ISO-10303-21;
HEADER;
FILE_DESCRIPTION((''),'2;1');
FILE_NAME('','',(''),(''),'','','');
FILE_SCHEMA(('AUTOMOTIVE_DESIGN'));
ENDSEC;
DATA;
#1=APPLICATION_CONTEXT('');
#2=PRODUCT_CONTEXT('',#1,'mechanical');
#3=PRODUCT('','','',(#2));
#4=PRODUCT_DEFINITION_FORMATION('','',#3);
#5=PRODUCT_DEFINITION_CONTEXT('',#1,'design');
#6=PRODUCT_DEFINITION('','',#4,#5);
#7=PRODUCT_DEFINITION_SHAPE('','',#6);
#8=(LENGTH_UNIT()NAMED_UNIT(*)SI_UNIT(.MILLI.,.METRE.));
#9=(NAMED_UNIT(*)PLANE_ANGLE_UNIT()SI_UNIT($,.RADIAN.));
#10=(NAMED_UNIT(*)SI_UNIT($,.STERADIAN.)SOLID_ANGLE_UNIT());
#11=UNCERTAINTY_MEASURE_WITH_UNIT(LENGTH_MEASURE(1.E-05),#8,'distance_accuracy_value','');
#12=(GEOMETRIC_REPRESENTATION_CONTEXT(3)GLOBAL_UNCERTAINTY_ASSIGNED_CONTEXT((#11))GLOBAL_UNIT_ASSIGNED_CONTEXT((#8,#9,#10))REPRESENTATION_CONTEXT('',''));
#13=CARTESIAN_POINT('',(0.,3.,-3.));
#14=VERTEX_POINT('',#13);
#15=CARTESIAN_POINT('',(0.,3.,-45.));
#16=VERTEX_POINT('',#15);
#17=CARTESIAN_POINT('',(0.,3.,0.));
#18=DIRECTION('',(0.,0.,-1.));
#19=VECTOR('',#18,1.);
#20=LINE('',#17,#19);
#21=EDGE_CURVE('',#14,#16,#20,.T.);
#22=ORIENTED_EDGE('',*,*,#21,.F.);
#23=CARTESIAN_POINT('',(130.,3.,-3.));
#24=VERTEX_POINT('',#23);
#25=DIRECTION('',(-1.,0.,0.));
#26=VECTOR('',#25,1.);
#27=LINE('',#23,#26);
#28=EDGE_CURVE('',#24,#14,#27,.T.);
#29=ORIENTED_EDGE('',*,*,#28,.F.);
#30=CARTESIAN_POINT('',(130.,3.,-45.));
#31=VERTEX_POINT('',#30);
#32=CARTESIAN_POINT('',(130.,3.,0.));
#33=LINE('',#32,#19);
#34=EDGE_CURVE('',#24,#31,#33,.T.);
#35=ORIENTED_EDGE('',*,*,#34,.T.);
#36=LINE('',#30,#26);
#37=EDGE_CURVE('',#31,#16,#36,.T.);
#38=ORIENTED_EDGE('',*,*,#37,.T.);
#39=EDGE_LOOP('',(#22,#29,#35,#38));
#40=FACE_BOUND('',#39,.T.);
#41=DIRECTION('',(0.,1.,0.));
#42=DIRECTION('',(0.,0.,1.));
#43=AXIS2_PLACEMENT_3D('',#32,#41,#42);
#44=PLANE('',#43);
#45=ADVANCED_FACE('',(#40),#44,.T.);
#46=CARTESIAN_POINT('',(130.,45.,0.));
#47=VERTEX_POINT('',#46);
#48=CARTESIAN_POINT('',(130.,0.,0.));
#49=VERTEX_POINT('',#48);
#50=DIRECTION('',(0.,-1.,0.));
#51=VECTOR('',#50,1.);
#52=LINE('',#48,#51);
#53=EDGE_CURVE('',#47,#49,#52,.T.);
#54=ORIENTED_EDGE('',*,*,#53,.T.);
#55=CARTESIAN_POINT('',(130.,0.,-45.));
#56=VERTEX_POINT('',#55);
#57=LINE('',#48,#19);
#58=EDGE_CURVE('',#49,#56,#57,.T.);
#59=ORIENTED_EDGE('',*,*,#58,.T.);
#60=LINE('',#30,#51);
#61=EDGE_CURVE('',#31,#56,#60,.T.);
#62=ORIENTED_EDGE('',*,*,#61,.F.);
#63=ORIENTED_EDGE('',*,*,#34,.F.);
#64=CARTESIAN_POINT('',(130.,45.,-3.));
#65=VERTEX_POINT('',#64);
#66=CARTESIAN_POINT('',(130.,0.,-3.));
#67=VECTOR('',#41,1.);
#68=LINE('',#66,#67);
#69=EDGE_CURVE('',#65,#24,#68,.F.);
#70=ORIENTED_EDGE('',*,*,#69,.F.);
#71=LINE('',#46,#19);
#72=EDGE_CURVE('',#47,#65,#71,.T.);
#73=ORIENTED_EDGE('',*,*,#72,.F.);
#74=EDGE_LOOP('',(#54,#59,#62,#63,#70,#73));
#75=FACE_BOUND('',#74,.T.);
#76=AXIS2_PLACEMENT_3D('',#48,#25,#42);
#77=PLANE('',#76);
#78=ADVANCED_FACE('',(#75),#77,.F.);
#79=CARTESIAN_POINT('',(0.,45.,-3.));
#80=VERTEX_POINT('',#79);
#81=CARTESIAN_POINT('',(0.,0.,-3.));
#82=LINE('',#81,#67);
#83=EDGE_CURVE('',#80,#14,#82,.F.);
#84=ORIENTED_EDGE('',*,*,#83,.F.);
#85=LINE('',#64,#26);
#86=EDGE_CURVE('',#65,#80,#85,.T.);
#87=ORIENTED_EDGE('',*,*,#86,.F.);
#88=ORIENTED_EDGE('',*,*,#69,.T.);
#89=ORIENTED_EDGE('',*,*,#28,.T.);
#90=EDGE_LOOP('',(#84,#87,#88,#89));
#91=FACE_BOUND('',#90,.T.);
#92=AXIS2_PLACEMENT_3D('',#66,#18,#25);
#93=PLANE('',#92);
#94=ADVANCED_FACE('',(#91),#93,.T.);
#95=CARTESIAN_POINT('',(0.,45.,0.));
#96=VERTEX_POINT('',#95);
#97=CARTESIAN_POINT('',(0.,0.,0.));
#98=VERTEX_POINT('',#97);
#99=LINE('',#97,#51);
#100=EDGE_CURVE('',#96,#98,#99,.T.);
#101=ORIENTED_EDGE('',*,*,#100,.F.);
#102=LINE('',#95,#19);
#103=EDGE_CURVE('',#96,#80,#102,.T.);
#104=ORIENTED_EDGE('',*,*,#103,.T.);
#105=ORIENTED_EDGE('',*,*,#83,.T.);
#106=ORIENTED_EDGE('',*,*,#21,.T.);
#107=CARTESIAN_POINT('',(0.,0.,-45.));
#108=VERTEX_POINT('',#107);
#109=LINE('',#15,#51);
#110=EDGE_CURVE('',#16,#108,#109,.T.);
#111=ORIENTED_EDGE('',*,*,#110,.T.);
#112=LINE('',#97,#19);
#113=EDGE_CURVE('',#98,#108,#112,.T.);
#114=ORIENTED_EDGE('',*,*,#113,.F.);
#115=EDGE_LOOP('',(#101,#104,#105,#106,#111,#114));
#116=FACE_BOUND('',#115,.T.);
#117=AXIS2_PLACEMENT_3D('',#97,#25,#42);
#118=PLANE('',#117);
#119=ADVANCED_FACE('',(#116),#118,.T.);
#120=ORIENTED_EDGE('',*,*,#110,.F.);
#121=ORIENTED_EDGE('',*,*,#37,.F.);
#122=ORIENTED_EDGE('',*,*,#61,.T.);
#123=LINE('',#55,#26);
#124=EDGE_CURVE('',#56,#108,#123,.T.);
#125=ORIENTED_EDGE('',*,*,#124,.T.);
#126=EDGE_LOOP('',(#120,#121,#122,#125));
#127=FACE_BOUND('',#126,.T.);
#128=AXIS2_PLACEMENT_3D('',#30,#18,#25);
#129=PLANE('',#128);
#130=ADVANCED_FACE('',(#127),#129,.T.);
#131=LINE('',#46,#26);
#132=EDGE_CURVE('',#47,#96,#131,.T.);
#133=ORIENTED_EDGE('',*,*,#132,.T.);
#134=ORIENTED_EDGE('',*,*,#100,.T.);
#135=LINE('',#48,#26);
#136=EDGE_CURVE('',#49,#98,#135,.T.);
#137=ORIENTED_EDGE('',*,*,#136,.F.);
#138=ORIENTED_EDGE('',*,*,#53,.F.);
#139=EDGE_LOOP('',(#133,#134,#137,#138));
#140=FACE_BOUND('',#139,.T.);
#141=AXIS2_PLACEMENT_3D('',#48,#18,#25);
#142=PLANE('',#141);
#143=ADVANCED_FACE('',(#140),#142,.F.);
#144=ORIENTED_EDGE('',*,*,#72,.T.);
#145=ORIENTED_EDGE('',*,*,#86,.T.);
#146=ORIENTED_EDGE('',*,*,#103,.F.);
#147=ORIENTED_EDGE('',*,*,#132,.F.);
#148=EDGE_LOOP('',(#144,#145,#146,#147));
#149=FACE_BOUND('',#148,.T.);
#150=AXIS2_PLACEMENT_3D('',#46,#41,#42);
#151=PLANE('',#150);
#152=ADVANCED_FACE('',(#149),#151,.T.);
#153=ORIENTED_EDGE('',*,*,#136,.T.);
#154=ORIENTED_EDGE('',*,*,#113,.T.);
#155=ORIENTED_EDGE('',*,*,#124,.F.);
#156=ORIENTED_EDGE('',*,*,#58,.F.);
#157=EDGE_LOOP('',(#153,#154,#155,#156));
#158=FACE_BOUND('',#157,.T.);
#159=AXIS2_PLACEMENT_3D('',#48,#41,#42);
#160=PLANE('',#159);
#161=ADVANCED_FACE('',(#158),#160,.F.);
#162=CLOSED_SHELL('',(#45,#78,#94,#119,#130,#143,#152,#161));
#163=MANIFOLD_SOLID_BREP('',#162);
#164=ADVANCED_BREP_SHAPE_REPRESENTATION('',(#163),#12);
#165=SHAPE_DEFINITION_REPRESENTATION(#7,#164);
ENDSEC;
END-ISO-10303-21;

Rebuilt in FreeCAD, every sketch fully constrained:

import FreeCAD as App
import Part
import Sketcher

V = App.Vector
Q = App.Units.Quantity

doc = App.newDocument("Part")
params = doc.addObject("Spreadsheet::Sheet", "Params")
for row, (alias, value) in enumerate([
    ("sketch1_width", "3 mm"),
    ("sketch1_width2", "42 mm"),
    ("pad1_length", "130 mm"),
], start=1):
    params.set(f"A{row}", alias)
    params.set(f"B{row}", "=" + value)
    params.setAlias(f"B{row}", alias)

body = doc.addObject("PartDesign::Body", "Body")

# Sketch on YZ plane
sketch1 = body.newObject("Sketcher::SketchObject", "Sketch")
sketch1.AttachmentSupport = (doc.getObject("YZ_Plane"), [""])
sketch1.MapMode = "FlatFace"
sketch1.addGeometry([
    Part.LineSegment(V(0, 0, 0), V(0, -45, 0)),  # 0
    Part.LineSegment(V(0, -45, 0), V(3, -45, 0)),  # 1
    Part.LineSegment(V(3, -45, 0), V(3, -3, 0)),  # 2
    Part.LineSegment(V(3, -3, 0), V(45, -3, 0)),  # 3
    Part.LineSegment(V(45, -3, 0), V(45, 0, 0)),  # 4
    Part.LineSegment(V(45, 0, 0), V(0, 0, 0)),  # 5
], False)
sketch1.addConstraint([
    Sketcher.Constraint("Coincident", 0, 2, 1, 1),
    Sketcher.Constraint("Coincident", 1, 2, 2, 1),
    Sketcher.Constraint("Coincident", 2, 2, 3, 1),
    Sketcher.Constraint("Coincident", 3, 2, 4, 1),
    Sketcher.Constraint("Coincident", 4, 2, 5, 1),
    Sketcher.Constraint("Coincident", 5, 2, 0, 1),
    Sketcher.Constraint("Vertical", 0),
    Sketcher.Constraint("Horizontal", 1),
    Sketcher.Constraint("Vertical", 2),
    Sketcher.Constraint("Horizontal", 3),
    Sketcher.Constraint("Vertical", 4),
    Sketcher.Constraint("Horizontal", 5),
    Sketcher.Constraint("Coincident", 5, 2, -1, 1),
    Sketcher.Constraint("Equal", 5, 0),
    Sketcher.Constraint("Equal", 3, 2),
    Sketcher.Constraint("DistanceX", 1, 1, 1, 2, Q("3 mm")),
    Sketcher.Constraint("DistanceX", 3, 1, 3, 2, Q("42 mm")),
])
sketch1.setExpression("Constraints[15]", "Params.sketch1_width")
sketch1.setExpression("Constraints[16]", "Params.sketch1_width2")
pad1 = body.newObject("PartDesign::Pad", "Pad")
pad1.Profile = sketch1
pad1.setExpression("Length", "Params.pad1_length")

doc.recompute()
